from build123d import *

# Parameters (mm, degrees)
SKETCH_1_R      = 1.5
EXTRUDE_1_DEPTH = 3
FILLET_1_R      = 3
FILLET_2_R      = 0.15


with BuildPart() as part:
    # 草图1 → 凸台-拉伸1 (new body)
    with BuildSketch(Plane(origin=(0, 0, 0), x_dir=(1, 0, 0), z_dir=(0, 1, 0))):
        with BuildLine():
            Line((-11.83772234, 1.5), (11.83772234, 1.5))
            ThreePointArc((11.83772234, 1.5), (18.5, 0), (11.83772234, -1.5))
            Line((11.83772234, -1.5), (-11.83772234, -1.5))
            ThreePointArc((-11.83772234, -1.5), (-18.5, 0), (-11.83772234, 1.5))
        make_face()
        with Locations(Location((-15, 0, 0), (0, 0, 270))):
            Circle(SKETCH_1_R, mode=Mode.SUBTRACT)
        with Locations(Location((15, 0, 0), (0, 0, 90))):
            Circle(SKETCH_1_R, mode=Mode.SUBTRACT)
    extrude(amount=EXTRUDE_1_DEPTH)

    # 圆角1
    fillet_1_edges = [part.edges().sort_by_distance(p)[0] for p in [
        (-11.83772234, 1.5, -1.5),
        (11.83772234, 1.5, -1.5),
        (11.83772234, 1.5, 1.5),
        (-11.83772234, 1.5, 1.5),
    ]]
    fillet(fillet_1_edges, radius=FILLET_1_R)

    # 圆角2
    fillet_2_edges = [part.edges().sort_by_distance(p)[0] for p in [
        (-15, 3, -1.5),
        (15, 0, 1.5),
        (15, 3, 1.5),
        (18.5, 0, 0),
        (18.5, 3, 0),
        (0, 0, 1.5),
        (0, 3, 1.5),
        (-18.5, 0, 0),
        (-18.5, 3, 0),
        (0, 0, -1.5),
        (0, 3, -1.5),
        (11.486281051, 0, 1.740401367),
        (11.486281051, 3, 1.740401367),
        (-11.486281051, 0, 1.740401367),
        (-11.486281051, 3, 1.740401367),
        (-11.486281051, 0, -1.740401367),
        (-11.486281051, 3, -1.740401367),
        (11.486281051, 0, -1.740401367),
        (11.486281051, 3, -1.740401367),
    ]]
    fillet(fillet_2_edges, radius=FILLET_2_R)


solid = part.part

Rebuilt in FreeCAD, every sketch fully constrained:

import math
import FreeCAD as App
import Part
import Sketcher
from FreeCAD import Vector


def edges_at(feature, points):
    """Names of the edges that pass closest to the given points."""
    edges = feature.Shape.Edges
    near = lambda p: min(range(len(edges)), key=lambda i: edges[i].distToShape(Part.Vertex(*p))[0])
    return sorted({f"Edge{near(p) + 1}" for p in points})

doc = App.newDocument("Part")
params = doc.addObject("Spreadsheet::Sheet", "Params")
for row, (alias, value) in enumerate([
    ("sketch1_diameter", "3 mm"),
    ("sketch1_radius", "3.5 mm"),
    ("pad1_length", "3 mm"),
    ("fillet_radius", "3 mm"),
    ("fillet2_radius", "0.15 mm"),
], start=1):
    params.set(f"A{row}", alias)
    params.set(f"B{row}", "=" + value)
    params.setAlias(f"B{row}", alias)

body = doc.addObject("PartDesign::Body", "Body")

sketch1 = doc.addObject("Sketcher::SketchObject", "Sketch")
body.addObject(sketch1)
sketch1.AttachmentSupport = (doc.XZ_Plane, [""])
sketch1.MapMode = "FlatFace"
sketch1.addGeometry(Part.LineSegment(Vector(11.8, -1.5, 0), Vector(-11.8, -1.5, 0)), False)
sketch1.addGeometry(Part.ArcOfCircle(Part.Circle(Vector(-15, 0, 0), Vector(0, 0, 1), 3.5), math.radians(25), math.radians(335)), False)
sketch1.addGeometry(Part.LineSegment(Vector(-11.8, 1.5, 0), Vector(11.8, 1.5, 0)), False)
sketch1.addGeometry(Part.ArcOfCircle(Part.Circle(Vector(15, 0, 0), Vector(0, 0, 1), 3.5), math.radians(-155), math.radians(155)), False)
sketch1.addGeometry(Part.Circle(Vector(15, 0, 0), Vector(0, 0, 1), 1.5), False)
sketch1.addGeometry(Part.Circle(Vector(-15, 0, 0), Vector(0, 0, 1), 1.5), False)
sketch1.addConstraint(Sketcher.Constraint("Coincident", 0, 2, 1, 2))
sketch1.addConstraint(Sketcher.Constraint("Coincident", 1, 1, 2, 1))
sketch1.addConstraint(Sketcher.Constraint("Coincident", 2, 2, 3, 2))
sketch1.addConstraint(Sketcher.Constraint("Coincident", 3, 1, 0, 1))
sketch1.addConstraint(Sketcher.Constraint("Horizontal", 0))
sketch1.addConstraint(Sketcher.Constraint("Horizontal", 2))
sketch1.addConstraint(Sketcher.Constraint("Coincident", 4, 3, 3, 3))
sketch1.addConstraint(Sketcher.Constraint("Coincident", 5, 3, 1, 3))
sketch1.addConstraint(Sketcher.Constraint("Equal", 1, 3))
sketch1.addConstraint(Sketcher.Constraint("Equal", 4, 5))
sketch1.addConstraint(Sketcher.Constraint("Symmetric", 1, 3, 3, 3, -1, 1))
sketch1.addConstraint(Sketcher.Constraint("Symmetric", 0, 2, 1, 1, -1))
sketch1.addConstraint(Sketcher.Constraint("Diameter", 4, 3.0))
sketch1.addConstraint(Sketcher.Constraint("Radius", 1, 3.5))
sketch1.addConstraint(Sketcher.Constraint("DistanceX", 1, 3, -1, 1, 15.0))
sketch1.addConstraint(Sketcher.Constraint("DistanceY", 0, 2, 1, 1, 3.0))
sketch1.setExpression("Constraints[12]", "Params.sketch1_diameter")
sketch1.setExpression("Constraints[13]", "Params.sketch1_radius")
pad1 = doc.addObject("PartDesign::Pad", "Pad")
body.addObject(pad1)
pad1.Profile = sketch1
pad1.setExpression("Length", "Params.pad1_length")
pad1.Reversed = True
doc.recompute()

fillet = doc.addObject("PartDesign::Fillet", "Fillet")
body.addObject(fillet)
fillet.Base = (pad1, edges_at(pad1, [
    (-11.838, 1.5, -1.5),
    (11.838, 1.5, -1.5),
    (11.838, 1.5, 1.5),
    (-11.838, 1.5, 1.5),
]))
fillet.setExpression("Radius", "Params.fillet_radius")
doc.recompute()

fillet2 = doc.addObject("PartDesign::Fillet", "Fillet001")
body.addObject(fillet2)
fillet2.Base = (fillet, edges_at(fillet, [
    (-15, 3, -1.5),
    (15, 0, 1.5),
    (15, 3, 1.5),
    (18.5, 0, 0),
    (18.5, 3, 0),
    (0, 0, 1.5),
    (0, 3, 1.5),
    (-18.5, 0, 0),
    (-18.5, 3, 0),
    (0, 0, -1.5),
    (0, 3, -1.5),
    (11.486, 0, 1.74),
    (11.486, 3, 1.74),
    (-11.486, 0, 1.74),
    (-11.486, 3, 1.74),
    (-11.486, 0, -1.74),
    (-11.486, 3, -1.74),
    (11.486, 0, -1.74),
    (11.486, 3, -1.74),
]))
fillet2.setExpression("Radius", "Params.fillet2_radius")

doc.recompute()
